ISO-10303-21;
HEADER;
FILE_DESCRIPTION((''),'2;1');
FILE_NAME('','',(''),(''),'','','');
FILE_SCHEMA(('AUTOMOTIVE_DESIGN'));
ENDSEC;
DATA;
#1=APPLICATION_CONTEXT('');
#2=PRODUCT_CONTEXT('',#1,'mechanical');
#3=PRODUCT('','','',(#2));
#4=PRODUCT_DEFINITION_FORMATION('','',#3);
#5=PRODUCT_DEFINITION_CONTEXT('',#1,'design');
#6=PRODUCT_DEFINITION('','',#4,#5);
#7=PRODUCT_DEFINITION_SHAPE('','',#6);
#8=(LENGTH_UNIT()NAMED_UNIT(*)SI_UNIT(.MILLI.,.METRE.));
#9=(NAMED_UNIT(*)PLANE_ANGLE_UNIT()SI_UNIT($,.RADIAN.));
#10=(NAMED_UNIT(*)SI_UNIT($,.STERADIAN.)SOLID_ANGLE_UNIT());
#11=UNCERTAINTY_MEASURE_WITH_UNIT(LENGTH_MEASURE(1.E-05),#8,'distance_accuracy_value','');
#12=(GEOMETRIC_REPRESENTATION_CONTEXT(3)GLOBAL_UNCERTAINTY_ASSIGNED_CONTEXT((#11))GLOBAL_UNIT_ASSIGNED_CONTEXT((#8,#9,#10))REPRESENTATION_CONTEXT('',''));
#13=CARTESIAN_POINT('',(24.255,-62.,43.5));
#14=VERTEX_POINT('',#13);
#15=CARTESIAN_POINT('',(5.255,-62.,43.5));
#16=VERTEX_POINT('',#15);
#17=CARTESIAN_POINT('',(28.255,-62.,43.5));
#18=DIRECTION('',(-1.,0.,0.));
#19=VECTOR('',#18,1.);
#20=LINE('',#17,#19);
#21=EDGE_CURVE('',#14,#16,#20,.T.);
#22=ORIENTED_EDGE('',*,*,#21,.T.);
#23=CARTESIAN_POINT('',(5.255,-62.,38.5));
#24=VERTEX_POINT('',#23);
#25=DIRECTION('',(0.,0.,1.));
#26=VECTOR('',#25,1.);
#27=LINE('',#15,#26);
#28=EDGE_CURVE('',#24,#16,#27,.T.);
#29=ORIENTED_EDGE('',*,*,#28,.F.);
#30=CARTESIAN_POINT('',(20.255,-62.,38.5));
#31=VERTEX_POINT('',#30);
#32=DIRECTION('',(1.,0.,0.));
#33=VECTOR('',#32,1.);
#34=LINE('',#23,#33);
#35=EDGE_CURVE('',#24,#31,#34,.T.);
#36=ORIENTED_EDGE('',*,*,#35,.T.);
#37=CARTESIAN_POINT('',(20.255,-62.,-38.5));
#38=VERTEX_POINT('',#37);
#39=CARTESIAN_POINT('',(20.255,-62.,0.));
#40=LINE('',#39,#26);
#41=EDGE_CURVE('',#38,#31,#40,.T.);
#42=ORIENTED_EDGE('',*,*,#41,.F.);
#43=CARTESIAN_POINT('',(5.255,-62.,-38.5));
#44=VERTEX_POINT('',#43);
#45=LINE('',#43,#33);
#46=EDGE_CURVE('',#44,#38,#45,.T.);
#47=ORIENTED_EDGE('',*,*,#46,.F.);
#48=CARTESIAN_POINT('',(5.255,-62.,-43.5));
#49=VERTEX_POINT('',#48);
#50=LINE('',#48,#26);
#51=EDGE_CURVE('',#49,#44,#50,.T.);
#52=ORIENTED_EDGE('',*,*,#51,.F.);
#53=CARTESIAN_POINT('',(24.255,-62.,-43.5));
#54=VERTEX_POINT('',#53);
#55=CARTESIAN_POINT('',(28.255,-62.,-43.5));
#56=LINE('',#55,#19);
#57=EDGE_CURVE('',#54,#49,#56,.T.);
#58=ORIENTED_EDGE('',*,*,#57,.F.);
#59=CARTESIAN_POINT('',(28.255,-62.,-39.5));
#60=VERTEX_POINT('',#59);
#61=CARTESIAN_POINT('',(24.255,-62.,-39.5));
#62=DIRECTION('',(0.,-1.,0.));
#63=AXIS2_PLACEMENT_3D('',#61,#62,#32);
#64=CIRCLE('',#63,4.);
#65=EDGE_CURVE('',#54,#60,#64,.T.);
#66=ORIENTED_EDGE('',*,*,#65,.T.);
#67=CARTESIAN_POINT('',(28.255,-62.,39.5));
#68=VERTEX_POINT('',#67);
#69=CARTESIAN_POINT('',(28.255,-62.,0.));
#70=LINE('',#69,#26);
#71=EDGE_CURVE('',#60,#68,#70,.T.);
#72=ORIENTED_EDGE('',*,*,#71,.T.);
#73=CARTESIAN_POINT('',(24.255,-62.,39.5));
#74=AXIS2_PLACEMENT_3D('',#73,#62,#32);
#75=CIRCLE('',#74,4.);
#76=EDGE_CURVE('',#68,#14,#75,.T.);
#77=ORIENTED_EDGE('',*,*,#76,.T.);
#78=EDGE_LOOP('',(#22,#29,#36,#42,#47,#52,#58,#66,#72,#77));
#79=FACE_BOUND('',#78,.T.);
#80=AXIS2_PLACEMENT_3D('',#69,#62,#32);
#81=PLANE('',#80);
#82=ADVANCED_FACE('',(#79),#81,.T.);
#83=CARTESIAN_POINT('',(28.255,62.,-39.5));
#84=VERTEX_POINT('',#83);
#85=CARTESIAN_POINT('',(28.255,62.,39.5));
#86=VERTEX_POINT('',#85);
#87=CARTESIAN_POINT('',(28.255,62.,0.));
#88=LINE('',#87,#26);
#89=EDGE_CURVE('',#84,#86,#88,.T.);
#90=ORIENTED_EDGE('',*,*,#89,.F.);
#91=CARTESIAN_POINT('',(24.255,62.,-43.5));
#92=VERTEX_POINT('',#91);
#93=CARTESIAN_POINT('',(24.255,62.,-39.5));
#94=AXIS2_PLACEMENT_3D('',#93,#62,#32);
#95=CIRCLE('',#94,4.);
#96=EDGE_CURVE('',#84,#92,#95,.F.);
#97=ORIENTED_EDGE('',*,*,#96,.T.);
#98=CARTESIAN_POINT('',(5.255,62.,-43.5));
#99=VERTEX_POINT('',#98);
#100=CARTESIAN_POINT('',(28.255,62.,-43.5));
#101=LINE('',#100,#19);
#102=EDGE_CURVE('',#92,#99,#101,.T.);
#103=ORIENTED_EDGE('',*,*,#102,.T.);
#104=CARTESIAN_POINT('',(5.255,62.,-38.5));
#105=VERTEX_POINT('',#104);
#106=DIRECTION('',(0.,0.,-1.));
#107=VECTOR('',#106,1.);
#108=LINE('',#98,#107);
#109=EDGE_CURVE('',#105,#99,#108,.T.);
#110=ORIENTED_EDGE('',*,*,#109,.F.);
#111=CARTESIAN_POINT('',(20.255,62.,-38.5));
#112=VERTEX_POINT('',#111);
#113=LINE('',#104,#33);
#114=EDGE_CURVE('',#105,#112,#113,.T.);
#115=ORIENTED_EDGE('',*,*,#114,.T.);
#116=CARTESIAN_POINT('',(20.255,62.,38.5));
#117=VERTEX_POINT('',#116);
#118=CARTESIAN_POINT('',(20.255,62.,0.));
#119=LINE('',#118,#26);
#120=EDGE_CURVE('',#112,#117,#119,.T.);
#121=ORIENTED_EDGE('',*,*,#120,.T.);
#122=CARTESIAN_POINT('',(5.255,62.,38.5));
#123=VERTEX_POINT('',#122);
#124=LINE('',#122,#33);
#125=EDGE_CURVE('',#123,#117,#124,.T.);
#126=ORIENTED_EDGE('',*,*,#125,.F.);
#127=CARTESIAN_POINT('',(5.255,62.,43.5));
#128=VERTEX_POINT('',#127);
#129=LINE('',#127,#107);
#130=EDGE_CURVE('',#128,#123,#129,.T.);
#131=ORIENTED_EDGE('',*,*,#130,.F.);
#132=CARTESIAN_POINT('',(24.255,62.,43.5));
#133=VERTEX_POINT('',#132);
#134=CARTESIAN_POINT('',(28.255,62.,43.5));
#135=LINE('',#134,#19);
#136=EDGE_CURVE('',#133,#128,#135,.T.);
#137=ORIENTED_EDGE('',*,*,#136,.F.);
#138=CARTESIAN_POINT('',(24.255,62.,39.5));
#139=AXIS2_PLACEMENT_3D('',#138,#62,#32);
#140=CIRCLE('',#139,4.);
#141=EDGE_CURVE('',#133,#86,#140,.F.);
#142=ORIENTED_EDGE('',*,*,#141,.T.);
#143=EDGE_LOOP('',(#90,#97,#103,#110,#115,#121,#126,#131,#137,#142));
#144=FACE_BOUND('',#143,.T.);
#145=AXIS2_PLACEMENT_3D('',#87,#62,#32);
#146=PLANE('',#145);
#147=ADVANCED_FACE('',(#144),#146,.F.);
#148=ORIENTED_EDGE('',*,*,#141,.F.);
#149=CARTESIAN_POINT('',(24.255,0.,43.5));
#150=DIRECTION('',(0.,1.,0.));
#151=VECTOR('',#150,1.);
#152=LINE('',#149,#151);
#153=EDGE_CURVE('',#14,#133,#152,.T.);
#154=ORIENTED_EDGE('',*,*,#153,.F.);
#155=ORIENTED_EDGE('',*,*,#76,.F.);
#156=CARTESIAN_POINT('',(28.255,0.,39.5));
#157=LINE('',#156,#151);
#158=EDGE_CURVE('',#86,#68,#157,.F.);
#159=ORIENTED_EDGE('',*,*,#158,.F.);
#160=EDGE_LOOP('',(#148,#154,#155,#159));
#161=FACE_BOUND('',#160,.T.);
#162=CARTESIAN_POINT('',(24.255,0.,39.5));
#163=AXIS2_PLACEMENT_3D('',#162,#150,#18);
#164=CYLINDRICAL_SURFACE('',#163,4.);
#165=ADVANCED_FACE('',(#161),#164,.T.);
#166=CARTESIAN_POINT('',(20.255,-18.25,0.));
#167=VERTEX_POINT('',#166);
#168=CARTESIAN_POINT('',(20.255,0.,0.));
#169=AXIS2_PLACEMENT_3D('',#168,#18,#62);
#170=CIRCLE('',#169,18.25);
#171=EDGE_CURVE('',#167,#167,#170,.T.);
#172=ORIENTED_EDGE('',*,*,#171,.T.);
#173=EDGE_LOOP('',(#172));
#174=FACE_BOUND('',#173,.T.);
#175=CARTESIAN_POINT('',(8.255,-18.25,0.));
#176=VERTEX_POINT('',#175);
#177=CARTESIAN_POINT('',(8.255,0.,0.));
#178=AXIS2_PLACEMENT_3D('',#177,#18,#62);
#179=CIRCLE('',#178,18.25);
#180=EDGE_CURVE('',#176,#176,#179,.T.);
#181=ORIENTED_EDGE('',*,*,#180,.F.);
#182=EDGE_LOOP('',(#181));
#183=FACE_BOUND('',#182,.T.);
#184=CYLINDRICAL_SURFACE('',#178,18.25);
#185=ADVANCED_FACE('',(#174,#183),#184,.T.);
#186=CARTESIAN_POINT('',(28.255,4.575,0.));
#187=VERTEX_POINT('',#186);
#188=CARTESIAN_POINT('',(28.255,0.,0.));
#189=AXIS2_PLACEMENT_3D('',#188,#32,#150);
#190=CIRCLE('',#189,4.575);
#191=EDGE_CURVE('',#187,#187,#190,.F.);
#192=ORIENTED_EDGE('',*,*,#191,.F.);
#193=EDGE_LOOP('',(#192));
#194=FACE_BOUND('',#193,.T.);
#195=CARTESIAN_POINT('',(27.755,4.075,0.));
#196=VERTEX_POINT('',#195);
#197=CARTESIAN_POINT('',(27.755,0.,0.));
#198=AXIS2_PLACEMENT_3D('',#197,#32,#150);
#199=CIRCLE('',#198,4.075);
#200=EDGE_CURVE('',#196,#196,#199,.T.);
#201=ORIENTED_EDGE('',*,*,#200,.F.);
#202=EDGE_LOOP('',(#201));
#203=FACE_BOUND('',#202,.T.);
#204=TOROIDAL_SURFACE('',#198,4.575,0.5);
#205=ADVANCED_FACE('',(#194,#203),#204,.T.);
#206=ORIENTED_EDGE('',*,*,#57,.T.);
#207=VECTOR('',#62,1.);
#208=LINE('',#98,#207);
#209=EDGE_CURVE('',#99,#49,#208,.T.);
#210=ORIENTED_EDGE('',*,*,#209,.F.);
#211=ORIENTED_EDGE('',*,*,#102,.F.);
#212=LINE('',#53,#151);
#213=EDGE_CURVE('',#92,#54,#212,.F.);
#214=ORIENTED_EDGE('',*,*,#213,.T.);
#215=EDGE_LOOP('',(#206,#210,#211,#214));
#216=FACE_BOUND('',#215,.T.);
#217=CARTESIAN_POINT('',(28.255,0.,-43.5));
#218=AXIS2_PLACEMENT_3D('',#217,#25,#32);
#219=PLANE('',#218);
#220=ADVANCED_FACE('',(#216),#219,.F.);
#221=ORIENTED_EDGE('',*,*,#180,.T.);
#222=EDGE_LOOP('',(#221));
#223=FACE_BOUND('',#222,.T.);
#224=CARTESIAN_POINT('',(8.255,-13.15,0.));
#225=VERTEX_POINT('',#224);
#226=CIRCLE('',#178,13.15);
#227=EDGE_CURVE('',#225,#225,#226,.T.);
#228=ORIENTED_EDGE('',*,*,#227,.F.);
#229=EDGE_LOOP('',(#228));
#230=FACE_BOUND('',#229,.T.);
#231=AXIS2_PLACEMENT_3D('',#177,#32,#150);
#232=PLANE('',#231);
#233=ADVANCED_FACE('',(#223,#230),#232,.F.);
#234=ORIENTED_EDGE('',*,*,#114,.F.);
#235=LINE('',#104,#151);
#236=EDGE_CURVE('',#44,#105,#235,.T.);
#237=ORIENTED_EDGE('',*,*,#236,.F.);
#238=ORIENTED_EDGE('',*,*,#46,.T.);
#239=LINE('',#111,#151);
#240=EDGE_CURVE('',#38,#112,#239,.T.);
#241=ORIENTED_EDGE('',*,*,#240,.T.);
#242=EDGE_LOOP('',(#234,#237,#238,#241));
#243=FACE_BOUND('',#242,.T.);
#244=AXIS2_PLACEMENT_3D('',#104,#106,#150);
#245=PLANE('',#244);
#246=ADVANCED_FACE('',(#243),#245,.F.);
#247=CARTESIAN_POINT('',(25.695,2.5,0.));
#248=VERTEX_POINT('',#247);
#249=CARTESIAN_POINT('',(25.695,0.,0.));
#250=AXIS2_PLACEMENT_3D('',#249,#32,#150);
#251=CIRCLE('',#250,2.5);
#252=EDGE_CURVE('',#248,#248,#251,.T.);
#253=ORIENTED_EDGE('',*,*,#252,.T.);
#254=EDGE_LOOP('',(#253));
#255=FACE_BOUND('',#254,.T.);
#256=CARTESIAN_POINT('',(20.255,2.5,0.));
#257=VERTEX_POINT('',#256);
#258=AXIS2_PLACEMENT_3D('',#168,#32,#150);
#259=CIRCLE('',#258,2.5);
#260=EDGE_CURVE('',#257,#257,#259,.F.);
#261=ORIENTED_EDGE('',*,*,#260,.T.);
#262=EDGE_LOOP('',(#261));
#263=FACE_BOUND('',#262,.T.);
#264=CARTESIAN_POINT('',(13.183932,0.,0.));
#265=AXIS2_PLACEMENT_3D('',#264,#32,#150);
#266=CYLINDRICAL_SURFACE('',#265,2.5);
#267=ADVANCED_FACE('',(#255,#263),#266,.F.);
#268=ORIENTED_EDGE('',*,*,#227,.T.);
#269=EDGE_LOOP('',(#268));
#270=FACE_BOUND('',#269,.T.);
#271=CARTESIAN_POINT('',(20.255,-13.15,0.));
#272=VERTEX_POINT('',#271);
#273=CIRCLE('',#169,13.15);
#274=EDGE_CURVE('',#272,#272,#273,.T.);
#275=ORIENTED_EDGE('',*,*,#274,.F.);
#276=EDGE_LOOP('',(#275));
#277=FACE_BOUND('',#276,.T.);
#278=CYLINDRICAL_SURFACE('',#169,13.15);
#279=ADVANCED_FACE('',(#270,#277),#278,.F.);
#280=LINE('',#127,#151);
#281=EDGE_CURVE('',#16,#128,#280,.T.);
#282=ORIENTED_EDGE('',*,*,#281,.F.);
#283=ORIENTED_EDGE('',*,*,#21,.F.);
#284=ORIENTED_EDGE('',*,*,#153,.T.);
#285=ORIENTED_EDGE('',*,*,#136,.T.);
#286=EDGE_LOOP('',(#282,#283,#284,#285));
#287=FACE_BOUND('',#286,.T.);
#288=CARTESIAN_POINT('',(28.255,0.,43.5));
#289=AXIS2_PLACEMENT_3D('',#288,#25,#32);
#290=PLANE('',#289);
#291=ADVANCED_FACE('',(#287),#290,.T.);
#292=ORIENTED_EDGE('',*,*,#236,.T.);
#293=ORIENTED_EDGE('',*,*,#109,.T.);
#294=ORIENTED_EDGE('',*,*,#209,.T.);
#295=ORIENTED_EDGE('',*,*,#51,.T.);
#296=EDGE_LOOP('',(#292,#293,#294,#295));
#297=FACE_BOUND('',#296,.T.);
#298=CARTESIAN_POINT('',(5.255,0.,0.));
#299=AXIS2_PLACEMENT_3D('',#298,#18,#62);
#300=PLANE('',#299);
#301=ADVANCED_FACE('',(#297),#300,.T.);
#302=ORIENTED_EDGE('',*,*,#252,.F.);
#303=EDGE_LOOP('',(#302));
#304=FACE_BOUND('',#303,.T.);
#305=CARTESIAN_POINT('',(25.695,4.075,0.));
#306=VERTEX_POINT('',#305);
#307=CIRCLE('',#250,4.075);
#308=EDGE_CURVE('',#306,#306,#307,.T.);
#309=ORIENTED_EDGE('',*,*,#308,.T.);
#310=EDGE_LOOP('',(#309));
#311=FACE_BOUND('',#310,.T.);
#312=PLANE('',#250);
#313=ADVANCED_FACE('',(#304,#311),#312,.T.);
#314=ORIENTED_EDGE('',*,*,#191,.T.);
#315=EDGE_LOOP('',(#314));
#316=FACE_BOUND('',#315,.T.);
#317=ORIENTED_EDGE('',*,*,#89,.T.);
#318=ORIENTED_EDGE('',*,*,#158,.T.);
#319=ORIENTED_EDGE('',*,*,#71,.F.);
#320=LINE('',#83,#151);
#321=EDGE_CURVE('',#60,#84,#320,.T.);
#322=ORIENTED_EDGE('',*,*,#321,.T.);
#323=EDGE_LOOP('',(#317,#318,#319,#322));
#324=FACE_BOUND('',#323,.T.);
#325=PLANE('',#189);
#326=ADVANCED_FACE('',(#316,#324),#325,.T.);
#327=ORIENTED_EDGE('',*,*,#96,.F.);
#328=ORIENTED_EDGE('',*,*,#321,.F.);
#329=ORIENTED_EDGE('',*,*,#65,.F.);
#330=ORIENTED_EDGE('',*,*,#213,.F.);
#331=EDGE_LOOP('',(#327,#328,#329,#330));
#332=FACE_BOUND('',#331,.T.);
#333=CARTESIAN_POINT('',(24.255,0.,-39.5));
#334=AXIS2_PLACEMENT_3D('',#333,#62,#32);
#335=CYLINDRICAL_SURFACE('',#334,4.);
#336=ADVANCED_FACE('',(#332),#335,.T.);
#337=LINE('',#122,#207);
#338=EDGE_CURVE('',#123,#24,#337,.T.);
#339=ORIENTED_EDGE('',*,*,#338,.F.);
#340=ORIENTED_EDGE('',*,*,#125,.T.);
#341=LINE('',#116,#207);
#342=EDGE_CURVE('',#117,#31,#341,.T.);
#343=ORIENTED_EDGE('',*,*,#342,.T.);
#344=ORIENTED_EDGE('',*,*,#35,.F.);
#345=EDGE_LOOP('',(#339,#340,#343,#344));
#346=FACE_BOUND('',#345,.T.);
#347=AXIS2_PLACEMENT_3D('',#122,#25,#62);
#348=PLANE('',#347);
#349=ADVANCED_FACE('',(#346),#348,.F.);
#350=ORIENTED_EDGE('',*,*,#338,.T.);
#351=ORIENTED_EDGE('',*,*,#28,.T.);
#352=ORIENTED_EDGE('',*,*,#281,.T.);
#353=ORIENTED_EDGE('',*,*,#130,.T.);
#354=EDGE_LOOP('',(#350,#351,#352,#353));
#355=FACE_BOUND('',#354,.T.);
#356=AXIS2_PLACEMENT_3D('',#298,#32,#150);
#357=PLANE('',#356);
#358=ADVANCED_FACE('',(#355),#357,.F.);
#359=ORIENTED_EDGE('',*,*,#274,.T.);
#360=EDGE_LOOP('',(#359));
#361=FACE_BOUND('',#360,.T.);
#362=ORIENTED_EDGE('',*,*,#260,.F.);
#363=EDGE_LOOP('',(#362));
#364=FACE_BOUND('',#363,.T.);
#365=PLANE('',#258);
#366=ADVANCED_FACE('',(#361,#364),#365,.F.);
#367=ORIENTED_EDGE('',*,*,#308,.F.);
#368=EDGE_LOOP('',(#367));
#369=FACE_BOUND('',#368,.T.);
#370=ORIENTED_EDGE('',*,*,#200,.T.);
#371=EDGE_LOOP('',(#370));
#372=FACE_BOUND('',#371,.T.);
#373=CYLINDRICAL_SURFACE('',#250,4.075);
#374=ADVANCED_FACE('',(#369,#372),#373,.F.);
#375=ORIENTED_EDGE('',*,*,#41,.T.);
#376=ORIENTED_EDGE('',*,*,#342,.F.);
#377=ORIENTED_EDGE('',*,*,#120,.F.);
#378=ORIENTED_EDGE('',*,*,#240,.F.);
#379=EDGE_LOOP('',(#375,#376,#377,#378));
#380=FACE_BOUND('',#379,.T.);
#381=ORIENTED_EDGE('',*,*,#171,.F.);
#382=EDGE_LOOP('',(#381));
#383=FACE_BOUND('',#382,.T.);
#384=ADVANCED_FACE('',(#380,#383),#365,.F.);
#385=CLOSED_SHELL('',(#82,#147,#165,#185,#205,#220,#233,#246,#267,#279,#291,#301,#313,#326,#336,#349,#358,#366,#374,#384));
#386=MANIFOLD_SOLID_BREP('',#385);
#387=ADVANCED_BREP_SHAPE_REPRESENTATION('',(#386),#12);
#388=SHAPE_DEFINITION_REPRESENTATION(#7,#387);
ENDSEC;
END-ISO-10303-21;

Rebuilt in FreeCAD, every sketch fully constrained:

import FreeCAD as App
import Part
import Sketcher
from FreeCAD import Vector


def edges_at(feature, points):
    """Names of the edges that pass closest to the given points."""
    edges = feature.Shape.Edges
    near = lambda p: min(range(len(edges)), key=lambda i: edges[i].distToShape(Part.Vertex(*p))[0])
    return sorted({f"Edge{near(p) + 1}" for p in points})

doc = App.newDocument("Part")
body = doc.addObject("PartDesign::Body", "Body")

sketch1 = body.newObject("Sketcher::SketchObject", "Sketch")
sketch1.AttachmentSupport = (doc.getObject("XY_Plane"), [""])
sketch1.MapMode = "FlatFace"
sketch1.addGeometry([
    Part.LineSegment(Vector(8, 18, 0), Vector(8, 0, 0)),
    Part.LineSegment(Vector(8, 0, 0), Vector(20, 0, 0)),
    Part.LineSegment(Vector(20, 0, 0), Vector(20, 18, 0)),
    Part.LineSegment(Vector(20, 18, 0), Vector(8, 18, 0)),
], False)
sketch1.addConstraint([
    Sketcher.Constraint("Coincident", 0, 2, 1, 1),
    Sketcher.Constraint("Coincident", 1, 2, 2, 1),
    Sketcher.Constraint("Coincident", 2, 2, 3, 1),
    Sketcher.Constraint("Coincident", 3, 2, 0, 1),
    Sketcher.Constraint("Vertical", 0),
    Sketcher.Constraint("Horizontal", 1),
    Sketcher.Constraint("Vertical", 2),
    Sketcher.Constraint("Horizontal", 3),
    Sketcher.Constraint("PointOnObject", 0, 2, -1),
    Sketcher.Constraint("DistanceX", 1, 1, 1, 2, 12.0),
    Sketcher.Constraint("DistanceY", 0, 2, 0, 1, 18.25),
    Sketcher.Constraint("DistanceX", -1, 1, 0, 2, 8.255),
])
revolution = body.newObject("PartDesign::Revolution", "Revolution")
revolution.Profile = sketch1
revolution.ReferenceAxis = (sketch1, ["H_Axis"])
revolution.Angle = 360

sketch2 = body.newObject("Sketcher::SketchObject", "Sketch001")
sketch2.AttachmentSupport = (doc.getObject("YZ_Plane"), [""])
sketch2.MapMode = "FlatFace"
sketch2.AttachmentOffset = App.Placement(Vector(0, 0, 8.255), App.Rotation())
sketch2.addGeometry(Part.Circle(Vector(0, 0, 0), Vector(0, 0, 1), 3.7), False)
sketch2.addConstraint([
    Sketcher.Constraint("Coincident", 0, 3, -1, 1),
    Sketcher.Constraint("Diameter", 0, 7.429),
])
pocket1 = body.newObject("PartDesign::Pocket", "Pocket")
pocket1.Profile = sketch2
pocket1.Length = 8.5725
pocket1.Reversed = True

sketch3 = body.newObject("Sketcher::SketchObject", "Sketch002")
sketch3.AttachmentSupport = (doc.getObject("YZ_Plane"), [""])
sketch3.MapMode = "FlatFace"
sketch3.AttachmentOffset = App.Placement(Vector(0, 0, 8.255), App.Rotation())
sketch3.addGeometry(Part.Circle(Vector(0, 0, 0), Vector(0, 0, 1), 13), False)
sketch3.addConstraint([
    Sketcher.Constraint("Coincident", 0, 3, -1, 1),
    Sketcher.Constraint("Diameter", 0, 26.3),
])
pocket2 = body.newObject("PartDesign::Pocket", "Pocket001")
pocket2.Profile = sketch3
pocket2.Length = 12
pocket2.Reversed = True
body2 = doc.addObject("PartDesign::Body", "Body001")

sketch4 = body2.newObject("Sketcher::SketchObject", "Sketch003")
sketch4.AttachmentSupport = (doc.getObject("YZ_Plane001"), [""])
sketch4.MapMode = "FlatFace"
sketch4.AttachmentOffset = App.Placement(Vector(0, 0, 20.255), App.Rotation())
sketch4.addGeometry([
    Part.LineSegment(Vector(62, 44, 0), Vector(-62, 44, 0)),
    Part.LineSegment(Vector(-62, 44, 0), Vector(-62, -44, 0)),
    Part.LineSegment(Vector(-62, -44, 0), Vector(62, -44, 0)),
    Part.LineSegment(Vector(62, -44, 0), Vector(62, 44, 0)),
], False)
sketch4.addConstraint([
    Sketcher.Constraint("Coincident", 0, 2, 1, 1),
    Sketcher.Constraint("Coincident", 1, 2, 2, 1),
    Sketcher.Constraint("Coincident", 2, 2, 3, 1),
    Sketcher.Constraint("Coincident", 3, 2, 0, 1),
    Sketcher.Constraint("Horizontal", 0),
    Sketcher.Constraint("Vertical", 1),
    Sketcher.Constraint("Horizontal", 2),
    Sketcher.Constraint("Vertical", 3),
    Sketcher.Constraint("Symmetric", 0, 2, 2, 2, -1, 1),
    Sketcher.Constraint("DistanceX", 0, 2, 0, 1, 124.0),
    Sketcher.Constraint("DistanceY", 1, 2, 1, 1, 87.0),
])
pad1 = body2.newObject("PartDesign::Pad", "Pad")
pad1.Profile = sketch4
pad1.Length = 8
doc.recompute()

fillet = body2.newObject("PartDesign::Fillet", "Fillet")
fillet.Base = (pad1, edges_at(pad1, [(28.255, 0, -43.5), (28.255, 0, 43.5)]))
fillet.Radius = 4

sketch5 = body2.newObject("Sketcher::SketchObject", "Sketch004")
sketch5.AttachmentSupport = (doc.getObject("YZ_Plane001"), [""])
sketch5.MapMode = "FlatFace"
sketch5.AttachmentOffset = App.Placement(Vector(0, 0, 28.255), App.Rotation())
sketch5.addGeometry(Part.Circle(Vector(0, 0, 0), Vector(0, 0, 1), 4.1), False)
sketch5.addConstraint([
    Sketcher.Constraint("Coincident", 0, 3, -1, 1),
    Sketcher.Constraint("Diameter", 0, 8.15),
])
pocket3 = body2.newObject("PartDesign::Pocket", "Pocket002")
pocket3.Profile = sketch5
pocket3.Length = 2.56

sketch6 = body2.newObject("Sketcher::SketchObject", "Sketch005")
sketch6.AttachmentSupport = (doc.getObject("YZ_Plane001"), [""])
sketch6.MapMode = "FlatFace"
sketch6.AttachmentOffset = App.Placement(Vector(0, 0, 28.255), App.Rotation())
sketch6.addGeometry(Part.Circle(Vector(0, 0, 0), Vector(0, 0, 1), 2.5), False)
sketch6.addConstraint([
    Sketcher.Constraint("Coincident", 0, 3, -1, 1),
    Sketcher.Constraint("Diameter", 0, 5.0),
])
pocket4 = body2.newObject("PartDesign::Pocket", "Pocket003")
pocket4.Profile = sketch6
pocket4.Length = 8
doc.recompute()

fillet2 = body2.newObject("PartDesign::Fillet", "Fillet001")
fillet2.Base = (pocket4, edges_at(pocket4, [(28.255, 0, 4.075)]))
fillet2.Radius = 0.5
doc.recompute()

boolean = body.newObject("PartDesign::Boolean", "Boolean")
boolean.Type = "Fuse"
boolean.addObjects([body2])

sketch7 = body.newObject("Sketcher::SketchObject", "Sketch006")
sketch7.AttachmentSupport = (doc.getObject("YZ_Plane"), [""])
sketch7.MapMode = "FlatFace"
sketch7.AttachmentOffset = App.Placement(Vector(0, 0, 20.255), App.Rotation())
sketch7.addGeometry([
    Part.LineSegment(Vector(62, -44, 0), Vector(-62, -44, 0)),
    Part.LineSegment(Vector(-62, -44, 0), Vector(-62, -38, 0)),
    Part.LineSegment(Vector(-62, -38, 0), Vector(62, -38, 0)),
    Part.LineSegment(Vector(62, -38, 0), Vector(62, -44, 0)),
    Part.LineSegment(Vector(62, 38, 0), Vector(-62, 38, 0)),
    Part.LineSegment(Vector(-62, 38, 0), Vector(-62, 44, 0)),
    Part.LineSegment(Vector(-62, 44, 0), Vector(62, 44, 0)),
    Part.LineSegment(Vector(62, 44, 0), Vector(62, 38, 0)),
], False)
sketch7.addConstraint([
    Sketcher.Constraint("Coincident", 0, 2, 1, 1),
    Sketcher.Constraint("Coincident", 1, 2, 2, 1),
    Sketcher.Constraint("Coincident", 2, 2, 3, 1),
    Sketcher.Constraint("Coincident", 3, 2, 0, 1),
    Sketcher.Constraint("Coincident", 4, 2, 5, 1),
    Sketcher.Constraint("Coincident", 5, 2, 6, 1),
    Sketcher.Constraint("Coincident", 6, 2, 7, 1),
    Sketcher.Constraint("Coincident", 7, 2, 4, 1),
    Sketcher.Constraint("Horizontal", 0),
    Sketcher.Constraint("Vertical", 1),
    Sketcher.Constraint("Horizontal", 2),
    Sketcher.Constraint("Vertical", 3),
    Sketcher.Constraint("Horizontal", 4),
    Sketcher.Constraint("Vertical", 5),
    Sketcher.Constraint("Horizontal", 6),
    Sketcher.Constraint("Vertical", 7),
    Sketcher.Constraint("Symmetric", 2, 2, 4, 2, -1, 1),
    Sketcher.Constraint("Symmetric", 0, 2, 6, 2, -1, 1),
    Sketcher.Constraint("Vertical", 1, 2, 4, 2),
    Sketcher.Constraint("DistanceX", 0, 2, 0, 1, 124.0),
    Sketcher.Constraint("DistanceY", 1, 1, 1, 2, 5.0),
    Sketcher.Constraint("DistanceY", 1, 2, 4, 2, 77.0),
])
pad2 = body.newObject("PartDesign::Pad", "Pad001")
pad2.Profile = sketch7
pad2.Length = 15
pad2.Reversed = True

doc.recompute()
